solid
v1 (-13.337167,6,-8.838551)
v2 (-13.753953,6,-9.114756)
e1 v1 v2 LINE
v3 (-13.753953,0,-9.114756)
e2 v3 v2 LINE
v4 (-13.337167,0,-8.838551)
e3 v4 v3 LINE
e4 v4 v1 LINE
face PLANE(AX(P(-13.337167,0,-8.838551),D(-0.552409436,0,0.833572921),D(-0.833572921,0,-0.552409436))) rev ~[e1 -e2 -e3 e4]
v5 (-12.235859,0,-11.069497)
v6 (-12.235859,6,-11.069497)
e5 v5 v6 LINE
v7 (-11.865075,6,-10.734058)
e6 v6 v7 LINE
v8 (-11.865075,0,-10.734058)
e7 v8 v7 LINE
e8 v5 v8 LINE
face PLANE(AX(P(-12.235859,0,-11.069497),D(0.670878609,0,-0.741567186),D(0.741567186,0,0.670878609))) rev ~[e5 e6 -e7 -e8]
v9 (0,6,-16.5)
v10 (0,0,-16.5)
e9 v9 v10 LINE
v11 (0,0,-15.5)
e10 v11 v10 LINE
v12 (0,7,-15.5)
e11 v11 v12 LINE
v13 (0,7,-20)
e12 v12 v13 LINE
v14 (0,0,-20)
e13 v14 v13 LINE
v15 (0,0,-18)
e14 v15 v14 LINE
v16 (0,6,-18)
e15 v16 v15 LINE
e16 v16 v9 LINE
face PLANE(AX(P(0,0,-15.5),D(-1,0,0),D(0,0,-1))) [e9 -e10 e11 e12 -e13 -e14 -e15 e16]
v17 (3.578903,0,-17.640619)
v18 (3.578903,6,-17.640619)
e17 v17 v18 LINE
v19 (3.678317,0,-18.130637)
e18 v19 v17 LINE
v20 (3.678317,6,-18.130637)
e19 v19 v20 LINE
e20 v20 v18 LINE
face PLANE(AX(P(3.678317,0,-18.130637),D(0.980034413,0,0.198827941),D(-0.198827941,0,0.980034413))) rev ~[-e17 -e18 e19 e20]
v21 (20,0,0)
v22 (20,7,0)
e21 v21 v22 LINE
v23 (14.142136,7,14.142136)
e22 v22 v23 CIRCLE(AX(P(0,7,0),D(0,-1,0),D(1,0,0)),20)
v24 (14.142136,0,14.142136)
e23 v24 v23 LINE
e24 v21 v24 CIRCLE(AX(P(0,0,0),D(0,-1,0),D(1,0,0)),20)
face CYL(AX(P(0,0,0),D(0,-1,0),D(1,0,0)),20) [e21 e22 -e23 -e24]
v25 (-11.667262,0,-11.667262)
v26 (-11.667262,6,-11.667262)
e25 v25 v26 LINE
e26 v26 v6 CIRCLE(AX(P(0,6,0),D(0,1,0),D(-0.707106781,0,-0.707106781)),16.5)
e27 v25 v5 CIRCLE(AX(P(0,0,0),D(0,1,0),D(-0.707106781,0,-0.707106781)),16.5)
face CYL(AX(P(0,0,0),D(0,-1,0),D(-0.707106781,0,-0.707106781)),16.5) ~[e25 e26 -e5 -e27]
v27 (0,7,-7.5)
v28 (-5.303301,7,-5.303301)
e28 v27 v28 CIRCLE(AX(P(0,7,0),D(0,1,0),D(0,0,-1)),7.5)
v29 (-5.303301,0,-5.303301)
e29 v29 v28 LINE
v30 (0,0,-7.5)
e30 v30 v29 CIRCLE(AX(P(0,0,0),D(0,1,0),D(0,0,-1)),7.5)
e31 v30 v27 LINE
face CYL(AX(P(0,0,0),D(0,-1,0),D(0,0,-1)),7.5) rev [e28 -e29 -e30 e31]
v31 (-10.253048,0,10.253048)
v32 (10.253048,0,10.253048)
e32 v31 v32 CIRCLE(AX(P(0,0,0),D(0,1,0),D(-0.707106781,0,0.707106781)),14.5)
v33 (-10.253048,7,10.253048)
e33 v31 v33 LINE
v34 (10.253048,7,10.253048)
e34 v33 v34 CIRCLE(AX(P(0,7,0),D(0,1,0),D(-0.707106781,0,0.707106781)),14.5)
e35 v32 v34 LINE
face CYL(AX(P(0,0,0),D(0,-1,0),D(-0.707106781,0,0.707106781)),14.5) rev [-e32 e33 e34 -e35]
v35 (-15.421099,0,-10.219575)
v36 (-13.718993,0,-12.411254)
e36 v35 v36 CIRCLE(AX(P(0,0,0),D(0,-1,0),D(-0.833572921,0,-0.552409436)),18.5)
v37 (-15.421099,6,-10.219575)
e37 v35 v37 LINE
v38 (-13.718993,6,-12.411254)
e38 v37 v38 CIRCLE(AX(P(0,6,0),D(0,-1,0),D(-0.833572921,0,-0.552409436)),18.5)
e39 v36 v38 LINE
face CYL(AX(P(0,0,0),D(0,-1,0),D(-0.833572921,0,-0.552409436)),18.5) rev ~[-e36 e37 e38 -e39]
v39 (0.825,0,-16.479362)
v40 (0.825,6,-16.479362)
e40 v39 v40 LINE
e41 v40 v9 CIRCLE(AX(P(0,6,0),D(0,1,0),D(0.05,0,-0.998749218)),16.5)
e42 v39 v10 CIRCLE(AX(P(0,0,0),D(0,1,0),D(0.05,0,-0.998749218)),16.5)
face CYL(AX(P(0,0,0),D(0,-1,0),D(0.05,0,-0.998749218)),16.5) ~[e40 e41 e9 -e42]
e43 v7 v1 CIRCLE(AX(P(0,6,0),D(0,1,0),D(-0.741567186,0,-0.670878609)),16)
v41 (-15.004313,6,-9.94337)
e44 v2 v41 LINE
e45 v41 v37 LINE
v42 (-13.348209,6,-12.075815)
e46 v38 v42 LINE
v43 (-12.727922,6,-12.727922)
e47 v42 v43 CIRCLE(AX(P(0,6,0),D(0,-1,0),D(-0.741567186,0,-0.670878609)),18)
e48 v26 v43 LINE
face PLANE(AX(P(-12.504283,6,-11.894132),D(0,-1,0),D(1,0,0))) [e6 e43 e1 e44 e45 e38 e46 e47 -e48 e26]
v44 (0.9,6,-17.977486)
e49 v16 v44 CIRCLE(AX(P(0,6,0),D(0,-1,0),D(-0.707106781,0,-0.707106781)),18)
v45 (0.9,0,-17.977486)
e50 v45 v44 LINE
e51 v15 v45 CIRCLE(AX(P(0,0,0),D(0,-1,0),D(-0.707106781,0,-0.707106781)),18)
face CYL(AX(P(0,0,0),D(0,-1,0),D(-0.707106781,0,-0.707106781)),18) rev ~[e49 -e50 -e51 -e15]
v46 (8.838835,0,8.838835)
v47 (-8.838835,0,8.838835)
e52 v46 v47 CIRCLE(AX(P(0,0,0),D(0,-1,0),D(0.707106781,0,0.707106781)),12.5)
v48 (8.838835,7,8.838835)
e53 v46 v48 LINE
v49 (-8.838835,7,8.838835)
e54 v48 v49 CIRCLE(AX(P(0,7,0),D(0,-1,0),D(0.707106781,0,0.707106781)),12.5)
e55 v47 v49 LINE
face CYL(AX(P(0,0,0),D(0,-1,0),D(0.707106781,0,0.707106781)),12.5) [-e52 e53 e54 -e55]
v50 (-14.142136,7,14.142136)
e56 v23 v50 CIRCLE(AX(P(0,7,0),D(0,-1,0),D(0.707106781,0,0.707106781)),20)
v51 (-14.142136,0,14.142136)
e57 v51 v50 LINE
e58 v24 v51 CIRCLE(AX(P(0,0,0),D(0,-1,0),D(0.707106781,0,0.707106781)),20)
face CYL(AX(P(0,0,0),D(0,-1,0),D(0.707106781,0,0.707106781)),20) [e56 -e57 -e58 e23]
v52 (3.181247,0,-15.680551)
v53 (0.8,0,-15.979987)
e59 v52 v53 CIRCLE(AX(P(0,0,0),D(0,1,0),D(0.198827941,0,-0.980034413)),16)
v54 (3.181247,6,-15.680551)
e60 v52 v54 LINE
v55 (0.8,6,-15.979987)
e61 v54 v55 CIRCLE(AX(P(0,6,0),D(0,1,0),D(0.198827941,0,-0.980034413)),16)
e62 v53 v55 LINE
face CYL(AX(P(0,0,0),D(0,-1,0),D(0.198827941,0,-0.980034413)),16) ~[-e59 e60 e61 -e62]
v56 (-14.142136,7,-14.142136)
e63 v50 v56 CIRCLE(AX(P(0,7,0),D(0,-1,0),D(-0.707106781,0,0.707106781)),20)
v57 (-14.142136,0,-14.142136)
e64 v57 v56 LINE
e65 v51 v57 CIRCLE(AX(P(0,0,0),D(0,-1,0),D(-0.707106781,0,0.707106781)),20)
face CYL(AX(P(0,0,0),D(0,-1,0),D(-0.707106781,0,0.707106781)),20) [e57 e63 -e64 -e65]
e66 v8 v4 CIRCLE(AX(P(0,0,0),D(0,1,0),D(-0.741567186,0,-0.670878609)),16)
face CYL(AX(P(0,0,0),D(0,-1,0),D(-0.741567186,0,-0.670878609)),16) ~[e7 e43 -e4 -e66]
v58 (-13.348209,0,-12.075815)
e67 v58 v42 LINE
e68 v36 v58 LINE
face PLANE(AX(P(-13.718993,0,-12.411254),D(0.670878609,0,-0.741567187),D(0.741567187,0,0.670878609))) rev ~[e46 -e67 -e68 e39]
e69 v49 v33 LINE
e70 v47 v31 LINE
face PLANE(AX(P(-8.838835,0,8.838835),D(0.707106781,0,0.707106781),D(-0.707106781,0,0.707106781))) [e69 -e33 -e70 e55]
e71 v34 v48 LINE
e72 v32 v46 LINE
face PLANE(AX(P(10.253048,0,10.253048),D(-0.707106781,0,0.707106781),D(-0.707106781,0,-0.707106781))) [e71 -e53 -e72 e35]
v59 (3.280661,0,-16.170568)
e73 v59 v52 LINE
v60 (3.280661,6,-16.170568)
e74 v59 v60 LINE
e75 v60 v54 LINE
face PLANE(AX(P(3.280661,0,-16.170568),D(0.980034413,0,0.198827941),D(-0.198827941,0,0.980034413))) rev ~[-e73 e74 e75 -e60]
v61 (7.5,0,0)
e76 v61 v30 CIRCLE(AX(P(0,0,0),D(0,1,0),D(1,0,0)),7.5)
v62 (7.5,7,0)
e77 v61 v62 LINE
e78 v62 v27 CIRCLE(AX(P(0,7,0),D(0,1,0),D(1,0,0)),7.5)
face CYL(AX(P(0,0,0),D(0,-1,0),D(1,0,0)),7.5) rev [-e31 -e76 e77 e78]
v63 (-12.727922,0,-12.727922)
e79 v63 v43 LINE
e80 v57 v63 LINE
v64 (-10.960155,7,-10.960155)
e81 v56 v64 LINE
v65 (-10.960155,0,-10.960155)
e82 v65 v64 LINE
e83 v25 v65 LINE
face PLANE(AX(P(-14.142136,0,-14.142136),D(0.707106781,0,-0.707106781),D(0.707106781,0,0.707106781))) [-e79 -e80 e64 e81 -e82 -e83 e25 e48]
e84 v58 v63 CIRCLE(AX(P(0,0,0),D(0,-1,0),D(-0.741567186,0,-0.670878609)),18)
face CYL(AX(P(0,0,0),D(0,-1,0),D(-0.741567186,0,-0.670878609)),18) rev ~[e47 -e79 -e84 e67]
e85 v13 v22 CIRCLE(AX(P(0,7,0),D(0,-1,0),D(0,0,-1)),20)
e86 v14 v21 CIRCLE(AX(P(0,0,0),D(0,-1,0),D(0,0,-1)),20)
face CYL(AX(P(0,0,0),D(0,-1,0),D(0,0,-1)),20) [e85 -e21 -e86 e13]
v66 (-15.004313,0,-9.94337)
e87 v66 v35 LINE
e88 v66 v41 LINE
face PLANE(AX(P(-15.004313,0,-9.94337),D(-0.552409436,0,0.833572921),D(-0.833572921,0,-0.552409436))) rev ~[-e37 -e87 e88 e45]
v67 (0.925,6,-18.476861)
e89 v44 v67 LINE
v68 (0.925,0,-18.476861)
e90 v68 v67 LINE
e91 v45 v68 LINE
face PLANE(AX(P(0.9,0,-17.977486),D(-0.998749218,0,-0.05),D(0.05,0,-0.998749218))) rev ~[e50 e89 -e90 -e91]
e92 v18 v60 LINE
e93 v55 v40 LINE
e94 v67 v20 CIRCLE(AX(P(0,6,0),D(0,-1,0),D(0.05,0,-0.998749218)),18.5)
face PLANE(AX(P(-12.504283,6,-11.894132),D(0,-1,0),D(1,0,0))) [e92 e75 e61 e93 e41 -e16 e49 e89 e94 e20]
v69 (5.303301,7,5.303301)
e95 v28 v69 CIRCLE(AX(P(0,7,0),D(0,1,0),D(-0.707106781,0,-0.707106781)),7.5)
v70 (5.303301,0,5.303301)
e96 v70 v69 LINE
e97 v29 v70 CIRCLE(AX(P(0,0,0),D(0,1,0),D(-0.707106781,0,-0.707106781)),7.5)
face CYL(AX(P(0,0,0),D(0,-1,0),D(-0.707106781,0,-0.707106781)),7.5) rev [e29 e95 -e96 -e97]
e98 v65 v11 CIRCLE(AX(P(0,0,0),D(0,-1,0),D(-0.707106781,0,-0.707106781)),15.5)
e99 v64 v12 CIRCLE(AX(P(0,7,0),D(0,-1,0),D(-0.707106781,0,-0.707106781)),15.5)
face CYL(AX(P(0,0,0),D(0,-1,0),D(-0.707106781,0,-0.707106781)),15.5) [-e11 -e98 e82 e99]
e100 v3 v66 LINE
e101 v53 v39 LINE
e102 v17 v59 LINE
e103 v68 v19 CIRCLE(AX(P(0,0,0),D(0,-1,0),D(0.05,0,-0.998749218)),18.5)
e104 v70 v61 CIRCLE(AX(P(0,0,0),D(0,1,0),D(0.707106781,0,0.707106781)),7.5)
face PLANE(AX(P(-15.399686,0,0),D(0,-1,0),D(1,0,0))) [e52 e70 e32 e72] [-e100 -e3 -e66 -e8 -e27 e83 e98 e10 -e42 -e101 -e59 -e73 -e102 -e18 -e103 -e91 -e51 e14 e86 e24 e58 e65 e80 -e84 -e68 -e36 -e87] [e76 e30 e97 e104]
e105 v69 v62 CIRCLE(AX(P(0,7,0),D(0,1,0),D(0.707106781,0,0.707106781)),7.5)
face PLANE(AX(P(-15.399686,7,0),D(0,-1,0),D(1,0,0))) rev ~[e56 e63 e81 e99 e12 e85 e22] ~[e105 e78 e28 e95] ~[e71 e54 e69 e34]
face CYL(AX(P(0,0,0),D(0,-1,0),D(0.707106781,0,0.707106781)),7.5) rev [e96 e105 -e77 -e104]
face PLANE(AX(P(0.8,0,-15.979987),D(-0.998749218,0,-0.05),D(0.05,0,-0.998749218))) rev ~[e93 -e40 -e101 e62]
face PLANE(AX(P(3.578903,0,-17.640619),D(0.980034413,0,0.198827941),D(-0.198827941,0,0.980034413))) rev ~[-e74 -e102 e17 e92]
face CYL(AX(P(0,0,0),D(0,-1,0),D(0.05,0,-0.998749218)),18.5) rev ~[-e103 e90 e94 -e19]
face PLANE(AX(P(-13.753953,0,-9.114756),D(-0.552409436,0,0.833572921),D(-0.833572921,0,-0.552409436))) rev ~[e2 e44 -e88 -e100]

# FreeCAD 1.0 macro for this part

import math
import FreeCAD as App
import Part
import Sketcher

doc = App.newDocument("Part")
body = doc.addObject("PartDesign::Body", "Body")

# Sketch on XZ plane
sketch1 = doc.addObject("Sketcher::SketchObject", "Sketch")
body.addObject(sketch1)
sketch1.AttachmentSupport = (doc.XZ_Plane, [""])
sketch1.MapMode = "FlatFace"
sketch1.addGeometry(Part.LineSegment(App.Vector(-14.1, -14.1, 0), App.Vector(-11, -11, 0)), False)
sketch1.addGeometry(Part.ArcOfCircle(Part.Circle(App.Vector(0, 0, 0), App.Vector(0, 0, 1), 15.5), math.radians(-135), math.radians(-90)), False)
sketch1.addGeometry(Part.LineSegment(App.Vector(0, -15.5, 0), App.Vector(0, -20, 0)), False)
sketch1.addGeometry(Part.ArcOfCircle(Part.Circle(App.Vector(0, 0, 0), App.Vector(0, 0, 1), 20), math.radians(-90), math.radians(0)), False)
sketch1.addGeometry(Part.ArcOfCircle(Part.Circle(App.Vector(0, 0, 0), App.Vector(0, 0, 1), 20), math.radians(0), math.radians(45)), False)
sketch1.addGeometry(Part.ArcOfCircle(Part.Circle(App.Vector(0, 0, 0), App.Vector(0, 0, 1), 20), math.radians(45), math.radians(135)), False)
sketch1.addGeometry(Part.ArcOfCircle(Part.Circle(App.Vector(0, 0, 0), App.Vector(0, 0, 1), 20), math.radians(135), math.radians(225)), False)
sketch1.addGeometry(Part.ArcOfCircle(Part.Circle(App.Vector(0, 0, 0), App.Vector(0, 0, 1), 7.5), math.radians(-135), math.radians(-90)), False)
sketch1.addGeometry(Part.ArcOfCircle(Part.Circle(App.Vector(0, 0, 0), App.Vector(0, 0, 1), 7.5), math.radians(45), math.radians(225)), False)
sketch1.addGeometry(Part.ArcOfCircle(Part.Circle(App.Vector(0, 0, 0), App.Vector(0, 0, 1), 7.5), math.radians(0), math.radians(45)), False)
sketch1.addGeometry(Part.ArcOfCircle(Part.Circle(App.Vector(0, 0, 0), App.Vector(0, 0, 1), 7.5), math.radians(-90), math.radians(0)), False)
sketch1.addGeometry(Part.LineSegment(App.Vector(-8.8, 8.8, 0), App.Vector(-10.3, 10.3, 0)), False)
sketch1.addGeometry(Part.ArcOfCircle(Part.Circle(App.Vector(0, 0, 0), App.Vector(0, 0, 1), 14.5), math.radians(45), math.radians(135)), False)
sketch1.addGeometry(Part.LineSegment(App.Vector(10.3, 10.3, 0), App.Vector(8.8, 8.8, 0)), False)
sketch1.addGeometry(Part.ArcOfCircle(Part.Circle(App.Vector(0, 0, 0), App.Vector(0, 0, 1), 12.5), math.radians(45), math.radians(135)), False)
sketch1.addConstraint(Sketcher.Constraint("Coincident", 0, 2, 1, 1))
sketch1.addConstraint(Sketcher.Constraint("Coincident", 1, 2, 2, 1))
sketch1.addConstraint(Sketcher.Constraint("Coincident", 2, 2, 3, 1))
sketch1.addConstraint(Sketcher.Constraint("Tangent", 3, 2, 4, 1))
sketch1.addConstraint(Sketcher.Constraint("Tangent", 4, 2, 5, 1))
sketch1.addConstraint(Sketcher.Constraint("Tangent", 5, 2, 6, 1))
sketch1.addConstraint(Sketcher.Constraint("Coincident", 6, 2, 0, 1))
sketch1.addConstraint(Sketcher.Constraint("Tangent", 7, 1, 8, 2))
sketch1.addConstraint(Sketcher.Constraint("Tangent", 8, 1, 9, 2))
sketch1.addConstraint(Sketcher.Constraint("Tangent", 9, 1, 10, 2))
sketch1.addConstraint(Sketcher.Constraint("Tangent", 10, 1, 7, 2))
sketch1.addConstraint(Sketcher.Constraint("Coincident", 11, 2, 12, 2))
sketch1.addConstraint(Sketcher.Constraint("Coincident", 12, 1, 13, 1))
sketch1.addConstraint(Sketcher.Constraint("Coincident", 13, 2, 14, 1))
sketch1.addConstraint(Sketcher.Constraint("Coincident", 14, 2, 11, 1))
sketch1.addConstraint(Sketcher.Constraint("Vertical", 2))
sketch1.addConstraint(Sketcher.Constraint("Coincident", 1, 3, -1, 1))
sketch1.addConstraint(Sketcher.Constraint("Coincident", 3, 3, -1, 1))
sketch1.addConstraint(Sketcher.Constraint("Coincident", 5, 3, -1, 1))
sketch1.addConstraint(Sketcher.Constraint("Coincident", 7, 3, -1, 1))
sketch1.addConstraint(Sketcher.Constraint("Coincident", 12, 3, -1, 1))
sketch1.addConstraint(Sketcher.Constraint("Coincident", 14, 3, -1, 1))
sketch1.addConstraint(Sketcher.Constraint("Equal", 5, 6))
sketch1.addConstraint(Sketcher.Constraint("Equal", 7, 8))
sketch1.addConstraint(Sketcher.Constraint("PointOnObject", 1, 2, -2))
sketch1.addConstraint(Sketcher.Constraint("PointOnObject", 3, 2, -1))
sketch1.addConstraint(Sketcher.Constraint("PointOnObject", 9, 1, -1))
sketch1.addConstraint(Sketcher.Constraint("PointOnObject", 10, 1, -2))
sketch1.addConstraint(Sketcher.Constraint("Perpendicular", 0, 11))
sketch1.addConstraint(Sketcher.Constraint("Perpendicular", 11, 13))
sketch1.addConstraint(Sketcher.Constraint("Horizontal", 4, 2, 5, 2))
sketch1.addConstraint(Sketcher.Constraint("Horizontal", 11, 2, 12, 1))
sketch1.addConstraint(Sketcher.Constraint("Horizontal", 13, 2, 14, 2))
sketch1.addConstraint(Sketcher.Constraint("Vertical", 5, 2, 6, 2))
sketch1.addConstraint(Sketcher.Constraint("Radius", 3, 20.0))
sketch1.addConstraint(Sketcher.Constraint("Radius", 1, 15.5))
sketch1.addConstraint(Sketcher.Constraint("Radius", 7, 7.5))
sketch1.addConstraint(Sketcher.Constraint("Radius", 12, 14.5))
sketch1.addConstraint(Sketcher.Constraint("Radius", 14, 12.5))
sketch1.addConstraint(Sketcher.Constraint("DistanceX", 7, 1, -1, 1, 5.303301))
sketch1.addConstraint(Sketcher.Constraint("DistanceX", -1, 1, 8, 1, 5.303301))
sketch1.addConstraint(Sketcher.Constraint("DistanceX", 13, 2, 4, 2, 5.303301))
sketch1.addConstraint(Sketcher.Constraint("DistanceX", 11, 2, -1, 1, 10.253048))
pad1 = doc.addObject("PartDesign::Pad", "Pad")
body.addObject(pad1)
pad1.Profile = sketch1
pad1.Length = 7
pad1.Reversed = True

# Sketch on XZ plane
sketch2 = doc.addObject("Sketcher::SketchObject", "Sketch001")
body.addObject(sketch2)
sketch2.AttachmentSupport = (doc.XZ_Plane, [""])
sketch2.MapMode = "FlatFace"
sketch2.addGeometry(Part.ArcOfCircle(Part.Circle(App.Vector(0, 0, 0), App.Vector(0, 0, 1), 16.5), math.radians(-137.87), math.radians(-135)), False)
sketch2.addGeometry(Part.LineSegment(App.Vector(-12.24, -11.07, 0), App.Vector(-11.87, -10.73, 0)), False)
sketch2.addGeometry(Part.ArcOfCircle(Part.Circle(App.Vector(0, 0, 0), App.Vector(0, 0, 1), 16), math.radians(-146.47), math.radians(-137.87)), False)
sketch2.addGeometry(Part.LineSegment(App.Vector(-13.34, -8.84, 0), App.Vector(-13.75, -9.11, 0)), False)
sketch2.addGeometry(Part.LineSegment(App.Vector(-13.75, -9.11, 0), App.Vector(-15, -9.94, 0)), False)
sketch2.addGeometry(Part.LineSegment(App.Vector(-15, -9.94, 0), App.Vector(-15.42, -10.22, 0)), False)
sketch2.addGeometry(Part.ArcOfCircle(Part.Circle(App.Vector(0, 0, 0), App.Vector(0, 0, 1), 18.5), math.radians(-146.47), math.radians(-137.87)), False)
sketch2.addGeometry(Part.LineSegment(App.Vector(-13.72, -12.41, 0), App.Vector(-13.35, -12.08, 0)), False)
sketch2.addGeometry(Part.ArcOfCircle(Part.Circle(App.Vector(0, 0, 0), App.Vector(0, 0, 1), 18), math.radians(-137.87), math.radians(-135)), False)
sketch2.addGeometry(Part.ArcOfCircle(Part.Circle(App.Vector(0, 0, 0), App.Vector(0, 0, 1), 18), math.radians(-135), math.radians(-87)), False)
sketch2.addGeometry(Part.LineSegment(App.Vector(0.9, -17.98, 0), App.Vector(0.93, -18.48, 0)), False)
sketch2.addGeometry(Part.ArcOfCircle(Part.Circle(App.Vector(0, 0, 0), App.Vector(0, 0, 1), 18.5), math.radians(-87.13), math.radians(-78.53)), False)
sketch2.addGeometry(Part.LineSegment(App.Vector(3.68, -18.13, 0), App.Vector(3.58, -17.64, 0)), False)
sketch2.addGeometry(Part.LineSegment(App.Vector(3.58, -17.64, 0), App.Vector(3.28, -16.17, 0)), False)
sketch2.addGeometry(Part.LineSegment(App.Vector(3.28, -16.17, 0), App.Vector(3.18, -15.68, 0)), False)
sketch2.addGeometry(Part.ArcOfCircle(Part.Circle(App.Vector(0, 0, 0), App.Vector(0, 0, 1), 16), math.radians(-87.13), math.radians(-78.53)), False)
sketch2.addGeometry(Part.LineSegment(App.Vector(0.8, -15.98, 0), App.Vector(0.82, -16.48, 0)), False)
sketch2.addGeometry(Part.ArcOfCircle(Part.Circle(App.Vector(0, 0, 0), App.Vector(0, 0, 1), 16.5), math.radians(-135), math.radians(-87)), False)
sketch2.addConstraint(Sketcher.Constraint("Coincident", 0, 1, 1, 1))
sketch2.addConstraint(Sketcher.Constraint("Coincident", 1, 2, 2, 2))
sketch2.addConstraint(Sketcher.Constraint("Coincident", 2, 1, 3, 1))
sketch2.addConstraint(Sketcher.Constraint("Coincident", 3, 2, 4, 1))
sketch2.addConstraint(Sketcher.Constraint("Coincident", 4, 2, 5, 1))
sketch2.addConstraint(Sketcher.Constraint("Coincident", 5, 2, 6, 1))
sketch2.addConstraint(Sketcher.Constraint("Coincident", 6, 2, 7, 1))
sketch2.addConstraint(Sketcher.Constraint("Coincident", 7, 2, 8, 1))
sketch2.addConstraint(Sketcher.Constraint("Tangent", 8, 2, 9, 1))
sketch2.addConstraint(Sketcher.Constraint("Coincident", 9, 2, 10, 1))
sketch2.addConstraint(Sketcher.Constraint("Coincident", 10, 2, 11, 1))
sketch2.addConstraint(Sketcher.Constraint("Coincident", 11, 2, 12, 1))
sketch2.addConstraint(Sketcher.Constraint("Coincident", 12, 2, 13, 1))
sketch2.addConstraint(Sketcher.Constraint("Coincident", 13, 2, 14, 1))
sketch2.addConstraint(Sketcher.Constraint("Coincident", 14, 2, 15, 2))
sketch2.addConstraint(Sketcher.Constraint("Coincident", 15, 1, 16, 1))
sketch2.addConstraint(Sketcher.Constraint("Coincident", 16, 2, 17, 2))
sketch2.addConstraint(Sketcher.Constraint("Tangent", 17, 1, 0, 2))
sketch2.addConstraint(Sketcher.Constraint("Coincident", 0, 3, -1, 1))
sketch2.addConstraint(Sketcher.Constraint("Coincident", 2, 3, -1, 1))
sketch2.addConstraint(Sketcher.Constraint("Coincident", 6, 3, -1, 1))
sketch2.addConstraint(Sketcher.Constraint("Coincident", 8, 3, -1, 1))
sketch2.addConstraint(Sketcher.Constraint("Coincident", 11, 3, -1, 1))
sketch2.addConstraint(Sketcher.Constraint("Coincident", 15, 3, -1, 1))
sketch2.addConstraint(Sketcher.Constraint("Equal", 8, 9))
sketch2.addConstraint(Sketcher.Constraint("Equal", 6, 11))
sketch2.addConstraint(Sketcher.Constraint("Equal", 2, 15))
sketch2.addConstraint(Sketcher.Constraint("Equal", 0, 17))
sketch2.addConstraint(Sketcher.Constraint("Parallel", 3, 4))
sketch2.addConstraint(Sketcher.Constraint("Parallel", 4, 5))
sketch2.addConstraint(Sketcher.Constraint("Parallel", 1, 7))
sketch2.addConstraint(Sketcher.Constraint("Parallel", 12, 13))
sketch2.addConstraint(Sketcher.Constraint("Parallel", 13, 14))
sketch2.addConstraint(Sketcher.Constraint("Parallel", 10, 16))
sketch2.addConstraint(Sketcher.Constraint("Equal", 1, 3))
sketch2.addConstraint(Sketcher.Constraint("Equal", 3, 5))
sketch2.addConstraint(Sketcher.Constraint("Equal", 5, 7))
sketch2.addConstraint(Sketcher.Constraint("Equal", 10, 12))
sketch2.addConstraint(Sketcher.Constraint("Equal", 4, 13))
sketch2.addConstraint(Sketcher.Constraint("Radius", 2, 16.0))
sketch2.addConstraint(Sketcher.Constraint("Radius", 8, 18.0))
sketch2.addConstraint(Sketcher.Constraint("Radius", 0, 16.5))
sketch2.addConstraint(Sketcher.Constraint("DistanceX", -1, 1, 9, 2, 0.9))
sketch2.addConstraint(Sketcher.Constraint("DistanceX", -1, 1, 15, 1, 0.8))
sketch2.addConstraint(Sketcher.Constraint("DistanceX", -1, 1, 10, 2, 0.925))
sketch2.addConstraint(Sketcher.Constraint("DistanceX", 5, 2, -1, 1, 15.421099))
sketch2.addConstraint(Sketcher.Constraint("DistanceY", 6, 2, 3, 2, 3.296499))
sketch2.addConstraint(Sketcher.Constraint("DistanceX", 0, 1, -1, 1, 12.235859))
sketch2.addConstraint(Sketcher.Constraint("DistanceY", 2, 1, -1, 1, 8.838551))
sketch2.addConstraint(Sketcher.Constraint("DistanceX", 7, 2, -1, 1, 13.348209))
sketch2.addConstraint(Sketcher.Constraint("DistanceY", 12, 2, -1, 1, 17.640619))
sketch2.addConstraint(Sketcher.Constraint("DistanceX", -1, 1, 13, 2, 3.280661))
sketch2.addConstraint(Sketcher.Constraint("DistanceX", 17, 1, -1, 1, 11.667262))
sketch2.addConstraint(Sketcher.Constraint("DistanceX", 6, 2, 8, 2, 0.991071))
pocket1 = doc.addObject("PartDesign::Pocket", "Pocket")
body.addObject(pocket1)
pocket1.Profile = sketch2
pocket1.Length = 6

doc.recompute()
